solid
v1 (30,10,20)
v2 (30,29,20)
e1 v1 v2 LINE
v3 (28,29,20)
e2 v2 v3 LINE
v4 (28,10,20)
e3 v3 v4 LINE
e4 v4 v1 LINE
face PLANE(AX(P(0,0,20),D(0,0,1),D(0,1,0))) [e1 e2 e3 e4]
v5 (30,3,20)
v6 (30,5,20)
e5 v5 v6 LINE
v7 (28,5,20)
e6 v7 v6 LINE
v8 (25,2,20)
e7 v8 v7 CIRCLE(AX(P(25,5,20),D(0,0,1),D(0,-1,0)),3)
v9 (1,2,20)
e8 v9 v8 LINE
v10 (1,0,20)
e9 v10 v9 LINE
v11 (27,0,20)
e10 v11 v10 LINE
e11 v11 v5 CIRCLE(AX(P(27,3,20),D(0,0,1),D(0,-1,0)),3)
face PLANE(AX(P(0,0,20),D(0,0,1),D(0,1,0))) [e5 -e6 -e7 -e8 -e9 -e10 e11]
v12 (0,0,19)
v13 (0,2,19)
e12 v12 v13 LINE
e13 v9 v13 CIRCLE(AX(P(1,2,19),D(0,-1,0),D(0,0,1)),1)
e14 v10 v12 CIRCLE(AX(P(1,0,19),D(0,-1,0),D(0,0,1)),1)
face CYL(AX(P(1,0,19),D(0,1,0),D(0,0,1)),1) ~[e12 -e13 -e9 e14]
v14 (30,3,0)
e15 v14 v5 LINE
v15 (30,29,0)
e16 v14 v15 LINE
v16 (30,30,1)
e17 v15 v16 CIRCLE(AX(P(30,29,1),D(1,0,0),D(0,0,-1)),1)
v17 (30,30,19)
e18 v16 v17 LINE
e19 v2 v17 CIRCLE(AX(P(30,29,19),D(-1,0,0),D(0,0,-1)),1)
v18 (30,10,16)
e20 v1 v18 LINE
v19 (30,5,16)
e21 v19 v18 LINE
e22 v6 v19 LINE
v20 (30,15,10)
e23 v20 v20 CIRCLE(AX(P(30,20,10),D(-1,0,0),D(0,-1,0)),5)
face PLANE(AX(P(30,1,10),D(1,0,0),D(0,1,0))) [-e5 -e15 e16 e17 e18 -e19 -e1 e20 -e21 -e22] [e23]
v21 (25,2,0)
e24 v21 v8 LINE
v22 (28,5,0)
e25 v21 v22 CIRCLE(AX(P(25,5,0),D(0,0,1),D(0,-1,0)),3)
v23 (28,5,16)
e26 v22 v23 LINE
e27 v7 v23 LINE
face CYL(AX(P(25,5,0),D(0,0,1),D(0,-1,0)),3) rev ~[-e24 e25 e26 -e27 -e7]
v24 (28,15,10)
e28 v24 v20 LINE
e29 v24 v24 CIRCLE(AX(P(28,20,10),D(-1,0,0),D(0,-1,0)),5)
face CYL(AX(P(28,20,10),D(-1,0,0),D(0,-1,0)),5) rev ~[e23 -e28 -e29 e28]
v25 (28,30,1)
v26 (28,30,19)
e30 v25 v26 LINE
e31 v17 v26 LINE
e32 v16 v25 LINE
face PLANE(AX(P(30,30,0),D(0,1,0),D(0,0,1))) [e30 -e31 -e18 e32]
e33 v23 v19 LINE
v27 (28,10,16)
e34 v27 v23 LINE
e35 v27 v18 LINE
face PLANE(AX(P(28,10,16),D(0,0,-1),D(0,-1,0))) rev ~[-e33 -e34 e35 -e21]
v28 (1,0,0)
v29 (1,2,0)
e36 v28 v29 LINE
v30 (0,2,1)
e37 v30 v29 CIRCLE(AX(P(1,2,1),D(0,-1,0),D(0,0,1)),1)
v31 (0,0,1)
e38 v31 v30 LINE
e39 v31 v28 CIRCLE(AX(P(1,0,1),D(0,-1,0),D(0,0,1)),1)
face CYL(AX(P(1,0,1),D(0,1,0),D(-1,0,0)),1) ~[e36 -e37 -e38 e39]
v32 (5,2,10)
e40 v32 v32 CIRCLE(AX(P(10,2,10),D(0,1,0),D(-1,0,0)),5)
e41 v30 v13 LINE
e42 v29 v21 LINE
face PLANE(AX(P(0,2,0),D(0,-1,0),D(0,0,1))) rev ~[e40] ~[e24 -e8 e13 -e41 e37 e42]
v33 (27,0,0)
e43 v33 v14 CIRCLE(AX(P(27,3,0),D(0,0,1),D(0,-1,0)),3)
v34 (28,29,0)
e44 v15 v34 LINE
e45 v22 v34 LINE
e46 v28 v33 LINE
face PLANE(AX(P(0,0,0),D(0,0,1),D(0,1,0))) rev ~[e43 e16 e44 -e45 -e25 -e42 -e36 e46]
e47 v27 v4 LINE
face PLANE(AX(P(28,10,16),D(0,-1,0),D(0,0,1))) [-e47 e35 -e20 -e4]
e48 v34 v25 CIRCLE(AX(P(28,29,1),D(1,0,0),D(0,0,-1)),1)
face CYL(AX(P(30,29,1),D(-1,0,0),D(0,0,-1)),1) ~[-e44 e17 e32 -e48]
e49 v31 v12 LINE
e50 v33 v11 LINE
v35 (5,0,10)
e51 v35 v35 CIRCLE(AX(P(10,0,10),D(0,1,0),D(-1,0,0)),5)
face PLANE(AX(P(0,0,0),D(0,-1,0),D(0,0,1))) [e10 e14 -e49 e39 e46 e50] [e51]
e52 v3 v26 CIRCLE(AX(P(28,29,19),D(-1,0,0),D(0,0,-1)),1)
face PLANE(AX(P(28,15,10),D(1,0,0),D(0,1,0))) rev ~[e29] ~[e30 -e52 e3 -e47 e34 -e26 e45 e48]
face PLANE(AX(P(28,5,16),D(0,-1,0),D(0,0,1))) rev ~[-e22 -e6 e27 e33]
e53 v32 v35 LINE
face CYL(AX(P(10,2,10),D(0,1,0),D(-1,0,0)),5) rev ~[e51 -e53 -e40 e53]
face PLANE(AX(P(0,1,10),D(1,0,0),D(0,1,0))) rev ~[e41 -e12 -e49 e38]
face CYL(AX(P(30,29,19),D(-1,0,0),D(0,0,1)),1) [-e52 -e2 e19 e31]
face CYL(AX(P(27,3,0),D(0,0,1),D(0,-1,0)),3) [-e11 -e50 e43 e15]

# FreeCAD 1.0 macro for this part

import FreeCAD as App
import Part
import Sketcher
Q = App.Units.Quantity


def edges_at(feature, points):
    """Names of the edges that pass closest to the given points."""
    edges = feature.Shape.Edges
    near = lambda p: min(range(len(edges)), key=lambda i: edges[i].distToShape(Part.Vertex(*p))[0])
    return sorted({f"Edge{near(p) + 1}" for p in points})

doc = App.newDocument("Part")
params = doc.addObject("Spreadsheet::Sheet", "Params")
for row, (alias, value) in enumerate([
    ("sketch1_width", "2 mm"),
    ("sketch1_height", "20 mm"),
    ("pad1_length", "30 mm"),
    ("sketch2_width", "30 mm"),
    ("sketch2_height", "20 mm"),
    ("pad2_length", "2 mm"),
    ("sketch3_diameter", "10 mm"),
    ("sketch4_diameter", "10 mm"),
    ("sketch4_width", "5 mm"),
    ("sketch4_height", "4 mm"),
    ("fillet_radius", "1 mm"),
    ("fillet2_radius", "3 mm"),
], start=1):
    params.set(f"A{row}", alias)
    params.set(f"B{row}", "=" + value)
    params.setAlias(f"B{row}", alias)

body = doc.addObject("PartDesign::Body", "Body")

sketch1 = doc.addObject("Sketcher::SketchObject", "Sketch")
body.addObject(sketch1)
sketch1.AttachmentSupport = (doc.YZ_Plane, [""])
sketch1.MapMode = "FlatFace"
sketch1.addGeometry([
    Part.LineSegment(App.Vector(0, 20, 0), App.Vector(0, 0, 0)),
    Part.LineSegment(App.Vector(0, 0, 0), App.Vector(2, 0, 0)),
    Part.LineSegment(App.Vector(2, 0, 0), App.Vector(2, 20, 0)),
    Part.LineSegment(App.Vector(2, 20, 0), App.Vector(0, 20, 0)),
], False)
sketch1.addConstraint([
    Sketcher.Constraint("Coincident", 0, 2, 1, 1),
    Sketcher.Constraint("Coincident", 1, 2, 2, 1),
    Sketcher.Constraint("Coincident", 2, 2, 3, 1),
    Sketcher.Constraint("Coincident", 3, 2, 0, 1),
    Sketcher.Constraint("Vertical", 0),
    Sketcher.Constraint("Horizontal", 1),
    Sketcher.Constraint("Vertical", 2),
    Sketcher.Constraint("Horizontal", 3),
    Sketcher.Constraint("Coincident", 0, 2, -1, 1),
    Sketcher.Constraint("DistanceX", 1, 1, 1, 2, Q("2 mm")),
    Sketcher.Constraint("DistanceY", 0, 2, 0, 1, Q("20 mm")),
])
sketch1.setExpression("Constraints[9]", "Params.sketch1_width")
sketch1.setExpression("Constraints[10]", "Params.sketch1_height")
pad1 = doc.addObject("PartDesign::Pad", "Pad")
body.addObject(pad1)
pad1.Profile = sketch1
pad1.setExpression("Length", "Params.pad1_length")

sketch2 = doc.addObject("Sketcher::SketchObject", "Sketch001")
body.addObject(sketch2)
sketch2.AttachmentSupport = (doc.YZ_Plane, [""])
sketch2.MapMode = "FlatFace"
sketch2.AttachmentOffset = App.Placement(App.Vector(0, 0, 30), App.Rotation())
sketch2.addGeometry([
    Part.LineSegment(App.Vector(0, 20, 0), App.Vector(0, 0, 0)),
    Part.LineSegment(App.Vector(0, 0, 0), App.Vector(30, 0, 0)),
    Part.LineSegment(App.Vector(30, 0, 0), App.Vector(30, 20, 0)),
    Part.LineSegment(App.Vector(30, 20, 0), App.Vector(0, 20, 0)),
], False)
sketch2.addConstraint([
    Sketcher.Constraint("Coincident", 0, 2, 1, 1),
    Sketcher.Constraint("Coincident", 1, 2, 2, 1),
    Sketcher.Constraint("Coincident", 2, 2, 3, 1),
    Sketcher.Constraint("Coincident", 3, 2, 0, 1),
    Sketcher.Constraint("Vertical", 0),
    Sketcher.Constraint("Horizontal", 1),
    Sketcher.Constraint("Vertical", 2),
    Sketcher.Constraint("Horizontal", 3),
    Sketcher.Constraint("Coincident", 0, 2, -1, 1),
    Sketcher.Constraint("DistanceX", 1, 1, 1, 2, Q("30 mm")),
    Sketcher.Constraint("DistanceY", 0, 2, 0, 1, Q("20 mm")),
])
sketch2.setExpression("Constraints[9]", "Params.sketch2_width")
sketch2.setExpression("Constraints[10]", "Params.sketch2_height")
pad2 = doc.addObject("PartDesign::Pad", "Pad001")
body.addObject(pad2)
pad2.Profile = sketch2
pad2.setExpression("Length", "Params.pad2_length")
pad2.Reversed = True

sketch3 = doc.addObject("Sketcher::SketchObject", "Sketch002")
body.addObject(sketch3)
sketch3.AttachmentSupport = (doc.XZ_Plane, [""])
sketch3.MapMode = "FlatFace"
sketch3.AttachmentOffset = App.Placement(App.Vector(0, 0, -2), App.Rotation())
sketch3.addGeometry(Part.Circle(App.Vector(10, 10, 0), App.Vector(0, 0, 1), 5), False)
sketch3.addConstraint([
    Sketcher.Constraint("Diameter", 0, Q("10 mm")),
    Sketcher.Constraint("DistanceX", -1, 1, 0, 3, Q("10 mm")),
    Sketcher.Constraint("DistanceY", -1, 1, 0, 3, Q("10 mm")),
])
sketch3.setExpression("Constraints[0]", "Params.sketch3_diameter")
pocket1 = doc.addObject("PartDesign::Pocket", "Pocket")
body.addObject(pocket1)
pocket1.Profile = sketch3
pocket1.Type = "ThroughAll"
pocket1.Reversed = True

sketch4 = doc.addObject("Sketcher::SketchObject", "Sketch003")
body.addObject(sketch4)
sketch4.AttachmentSupport = (doc.YZ_Plane, [""])
sketch4.MapMode = "FlatFace"
sketch4.AttachmentOffset = App.Placement(App.Vector(0, 0, 28), App.Rotation())
sketch4.addGeometry([
    Part.Circle(App.Vector(20, 10, 0), App.Vector(0, 0, 1), 5),
    Part.LineSegment(App.Vector(10, 20, 0), App.Vector(10, 16, 0)),
    Part.LineSegment(App.Vector(10, 16, 0), App.Vector(5, 16, 0)),
    Part.LineSegment(App.Vector(5, 16, 0), App.Vector(5, 20, 0)),
    Part.LineSegment(App.Vector(5, 20, 0), App.Vector(10, 20, 0)),
], False)
sketch4.addConstraint([
    Sketcher.Constraint("Coincident", 1, 2, 2, 1),
    Sketcher.Constraint("Coincident", 2, 2, 3, 1),
    Sketcher.Constraint("Coincident", 3, 2, 4, 1),
    Sketcher.Constraint("Coincident", 4, 2, 1, 1),
    Sketcher.Constraint("Vertical", 1),
    Sketcher.Constraint("Horizontal", 2),
    Sketcher.Constraint("Vertical", 3),
    Sketcher.Constraint("Horizontal", 4),
    Sketcher.Constraint("Diameter", 0, Q("10 mm")),
    Sketcher.Constraint("DistanceX", 2, 2, 2, 1, Q("5 mm")),
    Sketcher.Constraint("DistanceY", 1, 2, 1, 1, Q("4 mm")),
    Sketcher.Constraint("DistanceX", -1, 1, 0, 3, Q("20 mm")),
    Sketcher.Constraint("DistanceY", -1, 1, 0, 3, Q("10 mm")),
    Sketcher.Constraint("DistanceX", -1, 1, 1, 2, Q("10 mm")),
    Sketcher.Constraint("DistanceY", -1, 1, 1, 2, Q("16 mm")),
])
sketch4.setExpression("Constraints[8]", "Params.sketch4_diameter")
sketch4.setExpression("Constraints[9]", "Params.sketch4_width")
sketch4.setExpression("Constraints[10]", "Params.sketch4_height")
pocket2 = doc.addObject("PartDesign::Pocket", "Pocket001")
body.addObject(pocket2)
pocket2.Profile = sketch4
pocket2.Type = "ThroughAll"
pocket2.Reversed = True
doc.recompute()

fillet = doc.addObject("PartDesign::Fillet", "Fillet")
body.addObject(fillet)
fillet.Base = (pocket2, edges_at(pocket2, [
    (0, 1, 20),
    (29, 30, 20),
    (29, 30, 0),
    (0, 1, 0),
]))
fillet.setExpression("Radius", "Params.fillet_radius")
doc.recompute()

fillet2 = doc.addObject("PartDesign::Fillet", "Fillet001")
body.addObject(fillet2)
fillet2.Base = (fillet, edges_at(fillet, [(28, 2, 10), (30, 0, 10)]))
fillet2.setExpression("Radius", "Params.fillet2_radius")

doc.recompute()
